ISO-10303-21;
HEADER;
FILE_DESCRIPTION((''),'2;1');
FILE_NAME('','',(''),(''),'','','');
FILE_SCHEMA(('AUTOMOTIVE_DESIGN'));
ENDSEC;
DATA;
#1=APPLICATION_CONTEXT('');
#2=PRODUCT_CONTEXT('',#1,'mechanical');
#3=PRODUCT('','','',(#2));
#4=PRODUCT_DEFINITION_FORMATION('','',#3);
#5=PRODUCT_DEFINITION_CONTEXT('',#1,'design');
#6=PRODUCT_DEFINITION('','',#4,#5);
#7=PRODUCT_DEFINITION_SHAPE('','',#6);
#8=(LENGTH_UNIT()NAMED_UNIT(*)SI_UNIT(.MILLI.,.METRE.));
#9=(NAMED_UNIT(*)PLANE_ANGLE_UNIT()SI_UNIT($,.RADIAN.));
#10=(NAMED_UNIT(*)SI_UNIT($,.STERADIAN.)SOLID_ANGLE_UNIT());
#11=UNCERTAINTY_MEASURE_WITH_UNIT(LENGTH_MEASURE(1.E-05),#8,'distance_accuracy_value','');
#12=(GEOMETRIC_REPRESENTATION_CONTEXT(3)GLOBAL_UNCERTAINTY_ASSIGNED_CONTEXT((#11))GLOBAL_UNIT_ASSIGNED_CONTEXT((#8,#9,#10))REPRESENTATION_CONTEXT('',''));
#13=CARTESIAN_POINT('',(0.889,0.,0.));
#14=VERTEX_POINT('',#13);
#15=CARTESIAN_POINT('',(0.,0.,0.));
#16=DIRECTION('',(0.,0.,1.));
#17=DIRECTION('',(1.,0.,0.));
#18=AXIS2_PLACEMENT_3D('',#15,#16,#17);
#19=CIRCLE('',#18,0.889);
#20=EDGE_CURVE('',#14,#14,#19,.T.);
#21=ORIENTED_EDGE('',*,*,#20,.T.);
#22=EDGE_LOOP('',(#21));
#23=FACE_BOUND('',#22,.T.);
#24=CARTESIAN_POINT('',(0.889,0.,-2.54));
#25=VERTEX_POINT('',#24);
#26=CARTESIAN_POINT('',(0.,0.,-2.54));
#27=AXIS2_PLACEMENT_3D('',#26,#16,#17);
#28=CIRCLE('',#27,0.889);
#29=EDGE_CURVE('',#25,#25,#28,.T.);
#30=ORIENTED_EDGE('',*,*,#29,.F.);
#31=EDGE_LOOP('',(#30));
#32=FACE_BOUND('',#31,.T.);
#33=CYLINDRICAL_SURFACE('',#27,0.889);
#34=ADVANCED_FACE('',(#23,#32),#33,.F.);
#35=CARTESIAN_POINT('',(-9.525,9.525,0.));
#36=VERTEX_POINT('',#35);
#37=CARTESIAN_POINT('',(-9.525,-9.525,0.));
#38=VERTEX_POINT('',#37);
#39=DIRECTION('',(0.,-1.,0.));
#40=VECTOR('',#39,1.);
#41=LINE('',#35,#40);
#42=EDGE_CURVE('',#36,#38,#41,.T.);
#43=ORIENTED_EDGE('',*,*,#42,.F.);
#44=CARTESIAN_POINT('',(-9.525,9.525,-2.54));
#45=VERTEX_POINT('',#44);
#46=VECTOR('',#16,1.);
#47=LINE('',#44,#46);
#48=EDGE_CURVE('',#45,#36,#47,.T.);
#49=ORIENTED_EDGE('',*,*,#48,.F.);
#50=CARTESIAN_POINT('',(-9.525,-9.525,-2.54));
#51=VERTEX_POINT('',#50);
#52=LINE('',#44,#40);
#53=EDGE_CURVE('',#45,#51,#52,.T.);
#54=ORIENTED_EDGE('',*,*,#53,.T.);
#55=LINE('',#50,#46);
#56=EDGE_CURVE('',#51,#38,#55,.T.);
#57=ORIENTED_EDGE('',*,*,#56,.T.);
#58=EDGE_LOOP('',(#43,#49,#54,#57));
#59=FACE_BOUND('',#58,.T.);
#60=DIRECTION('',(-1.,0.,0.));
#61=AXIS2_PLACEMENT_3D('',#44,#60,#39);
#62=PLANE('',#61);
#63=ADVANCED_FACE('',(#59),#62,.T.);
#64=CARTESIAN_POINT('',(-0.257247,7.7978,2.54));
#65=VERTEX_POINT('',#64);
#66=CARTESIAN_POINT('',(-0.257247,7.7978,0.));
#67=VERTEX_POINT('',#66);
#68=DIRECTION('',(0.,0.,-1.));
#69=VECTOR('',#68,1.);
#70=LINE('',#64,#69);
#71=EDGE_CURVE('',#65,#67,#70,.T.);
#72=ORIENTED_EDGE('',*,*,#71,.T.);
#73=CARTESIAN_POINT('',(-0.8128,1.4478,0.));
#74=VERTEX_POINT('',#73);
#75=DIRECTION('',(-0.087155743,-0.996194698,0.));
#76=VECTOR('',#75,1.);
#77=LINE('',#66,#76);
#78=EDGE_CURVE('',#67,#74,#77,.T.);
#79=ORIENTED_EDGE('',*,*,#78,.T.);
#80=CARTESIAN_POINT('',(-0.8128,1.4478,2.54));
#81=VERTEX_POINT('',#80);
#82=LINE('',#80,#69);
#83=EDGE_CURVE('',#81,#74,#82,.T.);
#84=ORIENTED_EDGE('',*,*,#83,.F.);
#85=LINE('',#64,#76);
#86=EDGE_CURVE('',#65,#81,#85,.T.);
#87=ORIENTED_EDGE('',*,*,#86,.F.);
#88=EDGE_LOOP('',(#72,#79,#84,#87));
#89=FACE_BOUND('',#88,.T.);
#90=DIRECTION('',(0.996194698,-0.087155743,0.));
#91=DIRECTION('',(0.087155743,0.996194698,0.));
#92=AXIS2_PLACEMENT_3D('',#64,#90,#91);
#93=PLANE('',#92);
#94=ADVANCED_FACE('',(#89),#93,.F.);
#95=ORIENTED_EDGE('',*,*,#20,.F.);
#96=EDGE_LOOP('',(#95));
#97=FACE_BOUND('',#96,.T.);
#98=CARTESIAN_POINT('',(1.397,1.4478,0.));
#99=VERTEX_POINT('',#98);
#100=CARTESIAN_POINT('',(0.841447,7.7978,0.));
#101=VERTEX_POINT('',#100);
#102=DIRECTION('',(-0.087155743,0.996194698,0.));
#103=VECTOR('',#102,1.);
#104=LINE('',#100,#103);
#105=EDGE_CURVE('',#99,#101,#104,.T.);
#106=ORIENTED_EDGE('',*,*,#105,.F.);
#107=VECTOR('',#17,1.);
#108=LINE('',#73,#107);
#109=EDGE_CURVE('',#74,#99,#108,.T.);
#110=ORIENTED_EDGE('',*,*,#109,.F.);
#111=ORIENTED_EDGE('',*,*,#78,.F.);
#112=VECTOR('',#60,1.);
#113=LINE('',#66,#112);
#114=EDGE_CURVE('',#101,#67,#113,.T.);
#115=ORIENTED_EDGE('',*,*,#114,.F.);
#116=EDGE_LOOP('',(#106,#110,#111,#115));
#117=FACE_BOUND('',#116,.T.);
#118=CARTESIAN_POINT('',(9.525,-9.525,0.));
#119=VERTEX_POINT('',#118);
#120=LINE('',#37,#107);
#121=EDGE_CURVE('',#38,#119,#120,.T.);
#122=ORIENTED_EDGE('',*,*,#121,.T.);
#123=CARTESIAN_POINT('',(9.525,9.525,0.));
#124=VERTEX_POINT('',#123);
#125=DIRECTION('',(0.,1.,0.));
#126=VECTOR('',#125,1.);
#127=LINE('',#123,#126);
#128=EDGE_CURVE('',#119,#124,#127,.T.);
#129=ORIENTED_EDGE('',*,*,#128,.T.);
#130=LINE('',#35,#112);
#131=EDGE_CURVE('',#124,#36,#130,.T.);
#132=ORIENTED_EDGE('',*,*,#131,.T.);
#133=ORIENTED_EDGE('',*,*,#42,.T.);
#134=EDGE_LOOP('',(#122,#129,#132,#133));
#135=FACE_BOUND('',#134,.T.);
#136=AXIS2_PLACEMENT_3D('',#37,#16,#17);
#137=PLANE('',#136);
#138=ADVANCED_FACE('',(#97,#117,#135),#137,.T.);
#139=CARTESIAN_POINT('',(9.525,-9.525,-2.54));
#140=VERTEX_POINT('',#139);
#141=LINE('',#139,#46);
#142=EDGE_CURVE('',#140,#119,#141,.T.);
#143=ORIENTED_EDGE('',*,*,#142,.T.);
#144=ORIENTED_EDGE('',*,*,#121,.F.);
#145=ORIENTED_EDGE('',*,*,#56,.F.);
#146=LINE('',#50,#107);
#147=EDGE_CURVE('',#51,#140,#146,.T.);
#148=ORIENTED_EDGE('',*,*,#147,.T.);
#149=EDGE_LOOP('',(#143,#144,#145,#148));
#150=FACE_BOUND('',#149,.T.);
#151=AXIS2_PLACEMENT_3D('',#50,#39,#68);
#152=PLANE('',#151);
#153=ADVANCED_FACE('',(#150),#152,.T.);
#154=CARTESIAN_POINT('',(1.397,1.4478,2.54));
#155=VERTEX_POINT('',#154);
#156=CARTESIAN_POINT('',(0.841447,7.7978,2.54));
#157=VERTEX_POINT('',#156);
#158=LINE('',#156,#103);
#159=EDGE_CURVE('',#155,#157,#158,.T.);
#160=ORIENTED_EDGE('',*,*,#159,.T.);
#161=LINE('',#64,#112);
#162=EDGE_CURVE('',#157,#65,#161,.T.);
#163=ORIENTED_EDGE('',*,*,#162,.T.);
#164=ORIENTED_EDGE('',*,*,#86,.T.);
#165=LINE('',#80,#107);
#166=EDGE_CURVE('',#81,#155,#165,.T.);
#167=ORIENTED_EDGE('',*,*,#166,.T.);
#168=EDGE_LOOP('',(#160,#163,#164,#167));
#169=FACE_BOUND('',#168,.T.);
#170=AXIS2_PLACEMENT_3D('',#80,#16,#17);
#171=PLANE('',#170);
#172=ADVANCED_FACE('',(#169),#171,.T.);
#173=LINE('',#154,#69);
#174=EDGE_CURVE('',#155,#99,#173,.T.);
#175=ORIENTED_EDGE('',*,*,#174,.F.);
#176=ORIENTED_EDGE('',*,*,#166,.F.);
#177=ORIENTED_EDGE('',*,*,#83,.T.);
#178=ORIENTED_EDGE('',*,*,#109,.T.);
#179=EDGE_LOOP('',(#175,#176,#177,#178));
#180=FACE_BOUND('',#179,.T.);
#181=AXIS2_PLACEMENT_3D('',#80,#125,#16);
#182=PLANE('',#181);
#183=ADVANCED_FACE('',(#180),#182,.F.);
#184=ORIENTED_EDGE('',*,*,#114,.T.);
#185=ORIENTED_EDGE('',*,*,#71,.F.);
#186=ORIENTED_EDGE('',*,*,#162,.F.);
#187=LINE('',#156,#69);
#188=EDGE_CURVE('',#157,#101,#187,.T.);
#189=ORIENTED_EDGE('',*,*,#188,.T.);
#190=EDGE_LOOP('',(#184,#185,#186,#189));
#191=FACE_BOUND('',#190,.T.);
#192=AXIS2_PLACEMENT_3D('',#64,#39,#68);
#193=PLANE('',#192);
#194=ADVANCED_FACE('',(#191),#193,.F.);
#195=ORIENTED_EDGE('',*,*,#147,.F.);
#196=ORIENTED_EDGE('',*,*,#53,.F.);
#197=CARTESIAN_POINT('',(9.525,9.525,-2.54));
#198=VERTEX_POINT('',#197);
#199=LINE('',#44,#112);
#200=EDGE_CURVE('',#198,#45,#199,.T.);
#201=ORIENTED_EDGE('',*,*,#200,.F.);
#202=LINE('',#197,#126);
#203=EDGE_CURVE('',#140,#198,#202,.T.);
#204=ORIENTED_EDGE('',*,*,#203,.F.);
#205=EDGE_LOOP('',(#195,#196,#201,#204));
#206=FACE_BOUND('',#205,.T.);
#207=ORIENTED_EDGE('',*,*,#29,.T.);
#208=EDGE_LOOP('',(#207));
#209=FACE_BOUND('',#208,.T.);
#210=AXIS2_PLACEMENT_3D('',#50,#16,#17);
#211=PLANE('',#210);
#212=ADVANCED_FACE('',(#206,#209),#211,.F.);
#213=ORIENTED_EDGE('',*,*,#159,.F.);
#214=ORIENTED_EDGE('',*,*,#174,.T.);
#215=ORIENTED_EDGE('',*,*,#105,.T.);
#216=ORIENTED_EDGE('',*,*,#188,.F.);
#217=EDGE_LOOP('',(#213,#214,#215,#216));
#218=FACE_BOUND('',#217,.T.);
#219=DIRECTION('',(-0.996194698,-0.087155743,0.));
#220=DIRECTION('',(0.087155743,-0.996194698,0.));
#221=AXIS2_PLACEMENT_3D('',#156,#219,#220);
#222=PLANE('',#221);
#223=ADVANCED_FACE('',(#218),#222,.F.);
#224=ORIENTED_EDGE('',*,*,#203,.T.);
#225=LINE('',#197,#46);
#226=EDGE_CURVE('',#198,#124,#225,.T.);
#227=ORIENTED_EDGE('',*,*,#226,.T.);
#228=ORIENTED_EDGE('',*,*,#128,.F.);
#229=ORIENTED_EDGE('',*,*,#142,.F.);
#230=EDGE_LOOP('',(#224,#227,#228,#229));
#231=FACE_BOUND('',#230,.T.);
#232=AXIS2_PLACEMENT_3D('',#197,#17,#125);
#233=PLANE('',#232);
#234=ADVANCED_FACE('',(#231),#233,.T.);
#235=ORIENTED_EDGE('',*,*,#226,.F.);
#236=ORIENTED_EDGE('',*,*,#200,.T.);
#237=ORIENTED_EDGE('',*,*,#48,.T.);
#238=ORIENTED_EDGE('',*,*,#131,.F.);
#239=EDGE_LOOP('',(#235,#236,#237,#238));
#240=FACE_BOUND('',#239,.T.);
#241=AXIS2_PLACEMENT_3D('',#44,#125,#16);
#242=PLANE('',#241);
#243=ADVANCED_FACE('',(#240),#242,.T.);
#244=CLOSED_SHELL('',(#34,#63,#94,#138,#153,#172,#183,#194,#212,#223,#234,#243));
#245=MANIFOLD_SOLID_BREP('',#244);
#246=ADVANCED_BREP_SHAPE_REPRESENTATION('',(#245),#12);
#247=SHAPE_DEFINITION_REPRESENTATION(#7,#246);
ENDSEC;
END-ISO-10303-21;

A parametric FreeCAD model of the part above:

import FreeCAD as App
import Part
import Sketcher
from FreeCAD import Vector
Q = App.Units.Quantity


def add_polygon(sketch, points):
    """Adds a closed chain of lines whose ends are joined by coincident constraints."""
    first, n = sketch.GeometryCount, len(points)
    for a, b in zip(points, points[1:] + points[:1]):
        sketch.addGeometry(Part.LineSegment(App.Vector(*a, 0), App.Vector(*b, 0)), False)
    for i in range(n):
        sketch.addConstraint(Sketcher.Constraint("Coincident", first + i, 2, first + (i + 1) % n, 1))

doc = App.newDocument("Part")
body = doc.addObject("PartDesign::Body", "Body")

# Sketch on XY plane
sketch1 = body.newObject("Sketcher::SketchObject", "Sketch")
sketch1.AttachmentSupport = (doc.getObject("XY_Plane"), [""])
sketch1.MapMode = "FlatFace"
add_polygon(sketch1, [(-9.5, 9.5), (-9.5, -9.5), (9.5, -9.5), (9.5, 9.5)])  # lines 0-3
sketch1.addGeometry(Part.Circle(Vector(0, 0, 0), Vector(0, 0, 1), 0.9), False)  # 4
sketch1.addConstraint(Sketcher.Constraint("Vertical", 0))
sketch1.addConstraint(Sketcher.Constraint("Horizontal", 1))
sketch1.addConstraint(Sketcher.Constraint("Vertical", 2))
sketch1.addConstraint(Sketcher.Constraint("Horizontal", 3))
sketch1.addConstraint(Sketcher.Constraint("Coincident", 4, 3, -1, 1))
sketch1.addConstraint(Sketcher.Constraint("Symmetric", 0, 2, 2, 2, -1, 1))
sketch1.addConstraint(Sketcher.Constraint("Equal", 3, 0))
sketch1.addConstraint(Sketcher.Constraint("Diameter", 4, Q("0.07 in")))
sketch1.addConstraint(Sketcher.Constraint("DistanceX", 1, 1, 1, 2, Q("0.75 in")))
pad1 = body.newObject("PartDesign::Pad", "Pad")
pad1.Profile = sketch1
pad1.Length = Q("0.1 in")
pad1.Reversed = True

# Sketch on XY plane
sketch2 = body.newObject("Sketcher::SketchObject", "Sketch001")
sketch2.AttachmentSupport = (doc.getObject("XY_Plane"), [""])
sketch2.MapMode = "FlatFace"
add_polygon(sketch2, [(1.4, 1.4), (0.8, 7.8), (-0.3, 7.8), (-0.8, 1.4)])  # lines 0-3
sketch2.addConstraint(Sketcher.Constraint("Horizontal", 1))
sketch2.addConstraint(Sketcher.Constraint("Horizontal", 3))
sketch2.addConstraint(Sketcher.Constraint("Equal", 0, 2))
sketch2.addConstraint(Sketcher.Constraint("Angle", 0, Q("95 deg")))
sketch2.addConstraint(Sketcher.Constraint("DistanceX", 3, 1, 3, 2, Q("0.087 in")))
sketch2.addConstraint(Sketcher.Constraint("DistanceY", 2, 2, 1, 2, Q("0.25 in")))
sketch2.addConstraint(Sketcher.Constraint("DistanceY", -1, 1, 0, 2, Q("0.307 in")))
sketch2.addConstraint(Sketcher.Constraint("DistanceX", 2, 2, -1, 1, Q("0.032 in")))
pad2 = body.newObject("PartDesign::Pad", "Pad001")
pad2.Profile = sketch2
pad2.Length = Q("0.1 in")

doc.recompute()
